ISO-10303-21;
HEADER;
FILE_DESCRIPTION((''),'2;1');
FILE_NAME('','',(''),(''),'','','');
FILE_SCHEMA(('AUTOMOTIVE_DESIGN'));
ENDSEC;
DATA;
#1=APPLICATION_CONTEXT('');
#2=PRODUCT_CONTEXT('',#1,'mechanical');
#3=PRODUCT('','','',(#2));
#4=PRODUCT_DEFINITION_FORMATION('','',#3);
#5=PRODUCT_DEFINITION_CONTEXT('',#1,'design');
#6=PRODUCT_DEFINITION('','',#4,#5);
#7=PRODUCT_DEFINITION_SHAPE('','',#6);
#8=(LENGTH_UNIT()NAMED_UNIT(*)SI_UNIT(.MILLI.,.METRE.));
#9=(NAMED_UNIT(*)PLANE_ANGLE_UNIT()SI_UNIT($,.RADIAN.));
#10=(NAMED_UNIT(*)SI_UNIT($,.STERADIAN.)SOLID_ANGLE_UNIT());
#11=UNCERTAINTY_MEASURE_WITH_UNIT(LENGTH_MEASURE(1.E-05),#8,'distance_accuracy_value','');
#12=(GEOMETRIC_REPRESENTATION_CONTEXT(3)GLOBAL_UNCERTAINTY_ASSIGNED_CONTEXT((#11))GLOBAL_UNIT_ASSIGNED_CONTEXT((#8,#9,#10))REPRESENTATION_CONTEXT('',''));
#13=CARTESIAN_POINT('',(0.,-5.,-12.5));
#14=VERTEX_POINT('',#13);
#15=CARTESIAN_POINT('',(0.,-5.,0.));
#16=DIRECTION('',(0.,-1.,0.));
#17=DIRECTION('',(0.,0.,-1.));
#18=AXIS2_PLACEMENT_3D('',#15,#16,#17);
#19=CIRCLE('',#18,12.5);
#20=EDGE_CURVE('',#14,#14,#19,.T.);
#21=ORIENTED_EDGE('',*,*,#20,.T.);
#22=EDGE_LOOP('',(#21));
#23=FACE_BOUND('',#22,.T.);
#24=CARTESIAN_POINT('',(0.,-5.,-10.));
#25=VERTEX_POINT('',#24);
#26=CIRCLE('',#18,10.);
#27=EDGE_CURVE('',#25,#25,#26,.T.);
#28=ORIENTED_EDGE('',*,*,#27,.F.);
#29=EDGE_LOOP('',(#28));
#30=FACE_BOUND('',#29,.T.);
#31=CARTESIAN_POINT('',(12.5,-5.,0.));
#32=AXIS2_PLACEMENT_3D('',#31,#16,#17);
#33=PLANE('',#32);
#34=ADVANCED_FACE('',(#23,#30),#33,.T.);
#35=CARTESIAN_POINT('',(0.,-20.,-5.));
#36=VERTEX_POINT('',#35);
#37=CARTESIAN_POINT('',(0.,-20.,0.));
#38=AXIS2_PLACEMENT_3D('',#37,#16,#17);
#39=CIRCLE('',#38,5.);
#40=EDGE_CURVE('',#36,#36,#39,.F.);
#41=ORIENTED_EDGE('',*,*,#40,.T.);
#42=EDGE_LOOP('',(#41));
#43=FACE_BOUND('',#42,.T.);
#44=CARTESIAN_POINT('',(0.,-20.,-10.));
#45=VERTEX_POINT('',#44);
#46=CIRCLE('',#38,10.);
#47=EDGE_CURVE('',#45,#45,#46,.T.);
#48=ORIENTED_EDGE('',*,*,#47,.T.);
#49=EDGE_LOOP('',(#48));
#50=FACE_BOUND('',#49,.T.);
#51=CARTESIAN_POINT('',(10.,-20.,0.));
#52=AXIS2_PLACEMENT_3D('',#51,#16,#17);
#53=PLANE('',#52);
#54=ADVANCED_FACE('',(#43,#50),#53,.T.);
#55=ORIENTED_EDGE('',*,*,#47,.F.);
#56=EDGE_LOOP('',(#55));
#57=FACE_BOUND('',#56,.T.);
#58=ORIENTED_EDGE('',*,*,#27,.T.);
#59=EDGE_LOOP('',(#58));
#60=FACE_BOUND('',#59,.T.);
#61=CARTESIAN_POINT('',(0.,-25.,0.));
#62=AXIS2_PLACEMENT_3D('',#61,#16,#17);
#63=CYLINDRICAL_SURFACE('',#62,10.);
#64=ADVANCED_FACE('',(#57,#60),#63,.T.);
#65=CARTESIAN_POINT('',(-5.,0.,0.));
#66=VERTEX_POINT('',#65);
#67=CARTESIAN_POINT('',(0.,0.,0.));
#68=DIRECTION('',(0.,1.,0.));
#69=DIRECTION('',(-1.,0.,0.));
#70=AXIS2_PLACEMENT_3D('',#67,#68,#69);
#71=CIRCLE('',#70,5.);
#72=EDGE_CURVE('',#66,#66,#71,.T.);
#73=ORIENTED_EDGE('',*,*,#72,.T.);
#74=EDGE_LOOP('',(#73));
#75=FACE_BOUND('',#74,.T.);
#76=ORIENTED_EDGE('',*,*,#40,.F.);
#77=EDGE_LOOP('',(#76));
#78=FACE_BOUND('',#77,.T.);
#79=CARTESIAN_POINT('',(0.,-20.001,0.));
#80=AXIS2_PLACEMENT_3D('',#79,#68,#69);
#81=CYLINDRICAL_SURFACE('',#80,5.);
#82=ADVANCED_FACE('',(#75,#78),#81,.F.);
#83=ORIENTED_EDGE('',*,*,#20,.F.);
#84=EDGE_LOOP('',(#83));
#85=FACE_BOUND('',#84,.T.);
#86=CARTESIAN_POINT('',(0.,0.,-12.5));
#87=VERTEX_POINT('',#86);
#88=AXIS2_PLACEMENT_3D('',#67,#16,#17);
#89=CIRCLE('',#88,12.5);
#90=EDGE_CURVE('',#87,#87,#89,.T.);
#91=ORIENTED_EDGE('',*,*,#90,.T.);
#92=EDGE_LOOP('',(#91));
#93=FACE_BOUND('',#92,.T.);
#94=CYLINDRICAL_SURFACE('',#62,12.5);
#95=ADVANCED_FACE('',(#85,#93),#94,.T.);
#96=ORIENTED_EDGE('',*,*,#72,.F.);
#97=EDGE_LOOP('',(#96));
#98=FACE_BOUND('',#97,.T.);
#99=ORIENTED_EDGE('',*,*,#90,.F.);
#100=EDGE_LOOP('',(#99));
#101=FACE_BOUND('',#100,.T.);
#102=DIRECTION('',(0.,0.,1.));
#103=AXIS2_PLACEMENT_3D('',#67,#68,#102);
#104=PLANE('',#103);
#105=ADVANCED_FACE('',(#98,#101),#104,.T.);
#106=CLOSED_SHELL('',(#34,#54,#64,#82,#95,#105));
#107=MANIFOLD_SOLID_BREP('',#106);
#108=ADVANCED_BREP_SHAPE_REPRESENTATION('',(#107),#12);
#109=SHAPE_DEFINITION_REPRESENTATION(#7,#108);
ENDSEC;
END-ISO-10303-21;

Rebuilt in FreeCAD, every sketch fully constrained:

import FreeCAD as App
import Part
import Sketcher
Q = App.Units.Quantity


def add_polygon(sketch, points):
    """Adds a closed chain of lines whose ends are joined by coincident constraints."""
    first, n = sketch.GeometryCount, len(points)
    for a, b in zip(points, points[1:] + points[:1]):
        sketch.addGeometry(Part.LineSegment(App.Vector(*a, 0), App.Vector(*b, 0)), False)
    for i in range(n):
        sketch.addConstraint(Sketcher.Constraint("Coincident", first + i, 2, first + (i + 1) % n, 1))

doc = App.newDocument("Part")
params = doc.addObject("Spreadsheet::Sheet", "Params")
for row, (alias, value) in enumerate([
    ("sketch1_width", "10 mm"),
    ("sketch1_height", "20 mm"),
    ("sketch1_height2", "15 mm"),
    ("sketch1_width2", "12.5 mm"),
    ("revolution_angle", "360 deg"),
    ("sketch2_diameter", "10 mm"),
], start=1):
    params.set(f"A{row}", alias)
    params.set(f"B{row}", "=" + value)
    params.setAlias(f"B{row}", alias)

body = doc.addObject("PartDesign::Body", "Body")

# Sketch on XY plane
sketch1 = body.newObject("Sketcher::SketchObject", "Sketch")
sketch1.AttachmentSupport = (doc.getObject("XY_Plane"), [""])
sketch1.MapMode = "FlatFace"
add_polygon(sketch1, [(12.5, 0), (0, 0), (0, -20), (10, -20), (10, -5), (12.5, -5)])  # lines 0-5
sketch1.addConstraint([
    Sketcher.Constraint("Horizontal", 0),
    Sketcher.Constraint("Vertical", 1),
    Sketcher.Constraint("Horizontal", 2),
    Sketcher.Constraint("Vertical", 3),
    Sketcher.Constraint("Horizontal", 4),
    Sketcher.Constraint("Vertical", 5),
    Sketcher.Constraint("Coincident", 0, 2, -1, 1),
    Sketcher.Constraint("DistanceX", 2, 1, 2, 2, Q("10 mm")),
    Sketcher.Constraint("DistanceY", 1, 2, 1, 1, Q("20 mm")),
    Sketcher.Constraint("DistanceY", 3, 1, 3, 2, Q("15 mm")),
    Sketcher.Constraint("DistanceX", 0, 2, 0, 1, Q("12.5 mm")),
])
sketch1.setExpression("Constraints[13]", "Params.sketch1_width")
sketch1.setExpression("Constraints[14]", "Params.sketch1_height")
sketch1.setExpression("Constraints[15]", "Params.sketch1_height2")
sketch1.setExpression("Constraints[16]", "Params.sketch1_width2")
revolution = body.newObject("PartDesign::Revolution", "Revolution")
revolution.Profile = sketch1
revolution.ReferenceAxis = (sketch1, ["V_Axis"])
revolution.setExpression("Angle", "Params.revolution_angle")

# Sketch on XZ plane
sketch2 = body.newObject("Sketcher::SketchObject", "Sketch001")
sketch2.AttachmentSupport = (doc.getObject("XZ_Plane"), [""])
sketch2.MapMode = "FlatFace"
sketch2.addGeometry(Part.Circle(App.Vector(0, 0, 0), App.Vector(0, 0, 1), 5), False)
sketch2.addConstraint([
    Sketcher.Constraint("Coincident", 0, 3, -1, 1),
    Sketcher.Constraint("Diameter", 0, Q("10 mm")),
])
sketch2.setExpression("Constraints[1]", "Params.sketch2_diameter")
pocket1 = body.newObject("PartDesign::Pocket", "Pocket")
pocket1.Profile = sketch2
pocket1.Type = "UpToFirst"
pocket1.Reversed = True

doc.recompute()
